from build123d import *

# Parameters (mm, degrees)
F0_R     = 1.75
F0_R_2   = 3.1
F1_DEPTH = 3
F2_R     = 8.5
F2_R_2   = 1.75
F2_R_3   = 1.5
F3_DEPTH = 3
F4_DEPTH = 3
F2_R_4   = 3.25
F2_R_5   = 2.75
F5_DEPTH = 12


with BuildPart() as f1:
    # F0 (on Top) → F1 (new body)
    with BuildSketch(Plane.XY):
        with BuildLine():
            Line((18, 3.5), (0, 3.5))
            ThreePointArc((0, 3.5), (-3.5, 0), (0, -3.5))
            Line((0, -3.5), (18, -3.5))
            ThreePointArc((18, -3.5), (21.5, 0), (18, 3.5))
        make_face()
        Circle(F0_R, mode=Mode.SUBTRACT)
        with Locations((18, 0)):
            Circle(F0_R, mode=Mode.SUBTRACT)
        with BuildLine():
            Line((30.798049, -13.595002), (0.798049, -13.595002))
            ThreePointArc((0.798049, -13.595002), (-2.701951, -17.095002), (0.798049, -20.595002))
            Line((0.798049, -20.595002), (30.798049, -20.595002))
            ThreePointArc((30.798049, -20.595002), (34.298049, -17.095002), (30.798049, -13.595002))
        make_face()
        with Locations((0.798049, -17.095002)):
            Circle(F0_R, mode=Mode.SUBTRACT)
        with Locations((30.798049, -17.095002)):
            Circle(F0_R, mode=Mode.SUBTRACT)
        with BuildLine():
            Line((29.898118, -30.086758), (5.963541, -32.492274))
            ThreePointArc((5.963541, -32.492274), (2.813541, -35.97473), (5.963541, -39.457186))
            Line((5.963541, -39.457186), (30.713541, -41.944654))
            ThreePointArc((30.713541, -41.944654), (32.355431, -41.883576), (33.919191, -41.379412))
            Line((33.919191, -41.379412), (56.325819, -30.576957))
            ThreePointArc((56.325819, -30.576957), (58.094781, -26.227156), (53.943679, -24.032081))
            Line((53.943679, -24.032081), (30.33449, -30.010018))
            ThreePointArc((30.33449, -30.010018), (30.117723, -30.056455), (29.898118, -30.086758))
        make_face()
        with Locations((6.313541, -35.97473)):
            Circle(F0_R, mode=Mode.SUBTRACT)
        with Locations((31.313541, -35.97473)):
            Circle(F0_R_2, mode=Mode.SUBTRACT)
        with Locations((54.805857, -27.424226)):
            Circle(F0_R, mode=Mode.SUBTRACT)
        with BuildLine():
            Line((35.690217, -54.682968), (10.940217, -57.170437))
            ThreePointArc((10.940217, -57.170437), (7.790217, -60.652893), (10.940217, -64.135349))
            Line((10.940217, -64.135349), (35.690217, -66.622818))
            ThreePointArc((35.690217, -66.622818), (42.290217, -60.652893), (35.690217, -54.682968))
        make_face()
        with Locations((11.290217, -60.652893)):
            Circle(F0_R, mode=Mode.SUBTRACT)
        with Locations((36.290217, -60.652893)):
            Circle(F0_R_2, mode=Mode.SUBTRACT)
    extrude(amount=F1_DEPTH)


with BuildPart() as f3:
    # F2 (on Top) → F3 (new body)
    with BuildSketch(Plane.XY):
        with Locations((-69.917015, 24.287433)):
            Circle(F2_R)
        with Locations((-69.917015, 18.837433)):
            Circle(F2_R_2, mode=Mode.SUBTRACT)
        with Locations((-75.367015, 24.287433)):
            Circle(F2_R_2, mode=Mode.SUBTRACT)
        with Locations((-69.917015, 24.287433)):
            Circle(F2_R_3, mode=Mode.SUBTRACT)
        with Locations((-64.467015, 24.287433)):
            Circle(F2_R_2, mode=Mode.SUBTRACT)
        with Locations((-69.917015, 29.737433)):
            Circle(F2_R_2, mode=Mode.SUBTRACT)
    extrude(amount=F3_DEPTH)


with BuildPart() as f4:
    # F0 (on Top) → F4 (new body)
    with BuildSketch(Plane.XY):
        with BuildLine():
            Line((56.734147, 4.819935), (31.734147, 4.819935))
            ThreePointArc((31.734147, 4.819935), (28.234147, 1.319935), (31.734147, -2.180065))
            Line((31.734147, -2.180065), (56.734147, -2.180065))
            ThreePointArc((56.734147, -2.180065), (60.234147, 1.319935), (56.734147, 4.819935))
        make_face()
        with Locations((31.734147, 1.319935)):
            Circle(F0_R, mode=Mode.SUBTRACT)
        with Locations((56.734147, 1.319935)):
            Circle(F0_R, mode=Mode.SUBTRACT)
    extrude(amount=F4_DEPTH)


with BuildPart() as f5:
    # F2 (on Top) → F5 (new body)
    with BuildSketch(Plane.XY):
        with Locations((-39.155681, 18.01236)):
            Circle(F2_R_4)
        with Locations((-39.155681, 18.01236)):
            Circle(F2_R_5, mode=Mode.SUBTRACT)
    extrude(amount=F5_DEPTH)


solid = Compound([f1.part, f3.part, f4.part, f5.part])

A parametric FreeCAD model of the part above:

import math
import FreeCAD as App
import Part
import Sketcher

V = App.Vector
Q = App.Units.Quantity

doc = App.newDocument("Part")
body = doc.addObject("PartDesign::Body", "Body")
body.AllowCompound = True

# Sketch on XY plane
sketch1 = doc.addObject("Sketcher::SketchObject", "Sketch")
body.addObject(sketch1)
sketch1.AttachmentSupport = (doc.XY_Plane, [""])
sketch1.MapMode = "FlatFace"
sketch1.addGeometry(Part.LineSegment(V(18, 3.5, 0), V(0, 3.5, 0)), False)
sketch1.addGeometry(Part.ArcOfCircle(Part.Circle(V(0, 0, 0), V(0, 0, 1), 3.5), math.radians(90), math.radians(270)), False)
sketch1.addGeometry(Part.LineSegment(V(0, -3.5, 0), V(18, -3.5, 0)), False)
sketch1.addGeometry(Part.ArcOfCircle(Part.Circle(V(18, 0, 0), V(0, 0, 1), 3.5), math.radians(-90), math.radians(90)), False)
sketch1.addGeometry(Part.Circle(V(0, 0, 0), V(0, 0, 1), 1.75), False)
sketch1.addGeometry(Part.Circle(V(18, 0, 0), V(0, 0, 1), 1.75), False)
sketch1.addGeometry(Part.LineSegment(V(30.8, -13.6, 0), V(0.8, -13.6, 0)), False)
sketch1.addGeometry(Part.ArcOfCircle(Part.Circle(V(0.8, -17.1, 0), V(0, 0, 1), 3.5), math.radians(90), math.radians(270)), False)
sketch1.addGeometry(Part.LineSegment(V(0.8, -20.6, 0), V(30.8, -20.6, 0)), False)
sketch1.addGeometry(Part.ArcOfCircle(Part.Circle(V(30.8, -17.1, 0), V(0, 0, 1), 3.5), math.radians(-90), math.radians(90)), False)
sketch1.addGeometry(Part.Circle(V(0.8, -17.1, 0), V(0, 0, 1), 1.75), False)
sketch1.addGeometry(Part.Circle(V(30.8, -17.1, 0), V(0, 0, 1), 1.75), False)
sketch1.addGeometry(Part.LineSegment(V(29.9, -30.09, 0), V(5.96, -32.49, 0)), False)
sketch1.addGeometry(Part.ArcOfCircle(Part.Circle(V(6.31, -35.97, 0), V(0, 0, 1), 3.5), math.radians(96), math.radians(264)), False)
sketch1.addGeometry(Part.LineSegment(V(5.96, -39.46, 0), V(30.71, -41.94, 0)), False)
sketch1.addGeometry(Part.ArcOfCircle(Part.Circle(V(31.31, -35.97, 0), V(0, 0, 1), 6), math.radians(-96), math.radians(-64)), False)
sketch1.addGeometry(Part.LineSegment(V(33.92, -41.38, 0), V(56.33, -30.58, 0)), False)
sketch1.addGeometry(Part.ArcOfCircle(Part.Circle(V(54.81, -27.42, 0), V(0, 0, 1), 3.5), math.radians(-64), math.radians(104)), False)
sketch1.addGeometry(Part.LineSegment(V(53.94, -24.03, 0), V(30.33, -30.01, 0)), False)
sketch1.addGeometry(Part.ArcOfCircle(Part.Circle(V(29.6, -27.1, 0), V(0, 0, 1), 3), math.radians(-84.26), math.radians(-75.79)), False)
sketch1.addGeometry(Part.Circle(V(6.31, -35.97, 0), V(0, 0, 1), 1.75), False)
sketch1.addGeometry(Part.Circle(V(31.31, -35.97, 0), V(0, 0, 1), 3.1), False)
sketch1.addGeometry(Part.Circle(V(54.81, -27.42, 0), V(0, 0, 1), 1.75), False)
sketch1.addGeometry(Part.LineSegment(V(35.69, -54.68, 0), V(10.94, -57.17, 0)), False)
sketch1.addGeometry(Part.ArcOfCircle(Part.Circle(V(11.29, -60.65, 0), V(0, 0, 1), 3.5), math.radians(96), math.radians(264)), False)
sketch1.addGeometry(Part.LineSegment(V(10.94, -64.14, 0), V(35.69, -66.62, 0)), False)
sketch1.addGeometry(Part.ArcOfCircle(Part.Circle(V(36.29, -60.65, 0), V(0, 0, 1), 6), math.radians(-96), math.radians(96)), False)
sketch1.addGeometry(Part.Circle(V(11.29, -60.65, 0), V(0, 0, 1), 1.75), False)
sketch1.addGeometry(Part.Circle(V(36.29, -60.65, 0), V(0, 0, 1), 3.1), False)
sketch1.addConstraint(Sketcher.Constraint("Tangent", 0, 2, 1, 1))
sketch1.addConstraint(Sketcher.Constraint("Tangent", 1, 2, 2, 1))
sketch1.addConstraint(Sketcher.Constraint("Tangent", 2, 2, 3, 1))
sketch1.addConstraint(Sketcher.Constraint("Tangent", 3, 2, 0, 1))
sketch1.addConstraint(Sketcher.Constraint("Tangent", 6, 2, 7, 1))
sketch1.addConstraint(Sketcher.Constraint("Tangent", 7, 2, 8, 1))
sketch1.addConstraint(Sketcher.Constraint("Tangent", 8, 2, 9, 1))
sketch1.addConstraint(Sketcher.Constraint("Tangent", 9, 2, 6, 1))
sketch1.addConstraint(Sketcher.Constraint("Tangent", 12, 2, 13, 1))
sketch1.addConstraint(Sketcher.Constraint("Tangent", 13, 2, 14, 1))
sketch1.addConstraint(Sketcher.Constraint("Tangent", 14, 2, 15, 1))
sketch1.addConstraint(Sketcher.Constraint("Tangent", 15, 2, 16, 1))
sketch1.addConstraint(Sketcher.Constraint("Tangent", 16, 2, 17, 1))
sketch1.addConstraint(Sketcher.Constraint("Coincident", 17, 2, 18, 1))
sketch1.addConstraint(Sketcher.Constraint("Tangent", 18, 2, 19, 2))
sketch1.addConstraint(Sketcher.Constraint("Tangent", 19, 1, 12, 1))
sketch1.addConstraint(Sketcher.Constraint("Tangent", 23, 2, 24, 1))
sketch1.addConstraint(Sketcher.Constraint("Tangent", 24, 2, 25, 1))
sketch1.addConstraint(Sketcher.Constraint("Tangent", 25, 2, 26, 1))
sketch1.addConstraint(Sketcher.Constraint("Tangent", 26, 2, 23, 1))
sketch1.addConstraint(Sketcher.Constraint("Horizontal", 0))
sketch1.addConstraint(Sketcher.Constraint("Horizontal", 2))
sketch1.addConstraint(Sketcher.Constraint("Horizontal", 6))
sketch1.addConstraint(Sketcher.Constraint("Horizontal", 8))
sketch1.addConstraint(Sketcher.Constraint("Coincident", 1, 3, -1, 1))
sketch1.addConstraint(Sketcher.Constraint("Coincident", 4, 3, -1, 1))
sketch1.addConstraint(Sketcher.Constraint("Coincident", 5, 3, 3, 3))
sketch1.addConstraint(Sketcher.Constraint("Coincident", 10, 3, 7, 3))
sketch1.addConstraint(Sketcher.Constraint("Coincident", 11, 3, 9, 3))
sketch1.addConstraint(Sketcher.Constraint("Coincident", 20, 3, 13, 3))
sketch1.addConstraint(Sketcher.Constraint("Coincident", 21, 3, 15, 3))
sketch1.addConstraint(Sketcher.Constraint("Coincident", 22, 3, 17, 3))
sketch1.addConstraint(Sketcher.Constraint("Coincident", 27, 3, 24, 3))
sketch1.addConstraint(Sketcher.Constraint("Coincident", 28, 3, 26, 3))
sketch1.addConstraint(Sketcher.Constraint("Equal", 4, 5))
sketch1.addConstraint(Sketcher.Constraint("Equal", 3, 7))
sketch1.addConstraint(Sketcher.Constraint("Equal", 5, 10))
sketch1.addConstraint(Sketcher.Constraint("Equal", 10, 11))
sketch1.addConstraint(Sketcher.Constraint("Equal", 9, 13))
sketch1.addConstraint(Sketcher.Constraint("Equal", 13, 17))
sketch1.addConstraint(Sketcher.Constraint("Equal", 11, 20))
sketch1.addConstraint(Sketcher.Constraint("Equal", 20, 22))
sketch1.addConstraint(Sketcher.Constraint("Equal", 17, 24))
sketch1.addConstraint(Sketcher.Constraint("Equal", 15, 26))
sketch1.addConstraint(Sketcher.Constraint("Equal", 22, 27))
sketch1.addConstraint(Sketcher.Constraint("Equal", 21, 28))
sketch1.addConstraint(Sketcher.Constraint("Parallel", 12, 23))
sketch1.addConstraint(Sketcher.Constraint("Parallel", 14, 25))
sketch1.addConstraint(Sketcher.Constraint("Horizontal", 13, 3, 15, 3))
sketch1.addConstraint(Sketcher.Constraint("Horizontal", 24, 3, 26, 3))
sketch1.addConstraint(Sketcher.Constraint("Equal", 14, 16))
sketch1.addConstraint(Sketcher.Constraint("Radius", 15, Q("6 mm")))
sketch1.addConstraint(Sketcher.Constraint("Diameter", 4, Q("3.5 mm")))
sketch1.addConstraint(Sketcher.Constraint("Diameter", 21, Q("6.2 mm")))
sketch1.addConstraint(Sketcher.Constraint("Radius", 1, Q("3.5 mm")))
sketch1.addConstraint(Sketcher.Constraint("DistanceX", 0, 2, 0, 1, Q("18 mm")))
sketch1.addConstraint(Sketcher.Constraint("DistanceX", 6, 2, 6, 1, Q("30 mm")))
sketch1.addConstraint(Sketcher.Constraint("DistanceX", 13, 3, 15, 3, Q("25.000001 mm")))
sketch1.addConstraint(Sketcher.Constraint("Radius", 19, Q("2.999961 mm")))
sketch1.addConstraint(Sketcher.Constraint("DistanceY", 6, 2, -1, 1, Q("13.595002 mm")))
sketch1.addConstraint(Sketcher.Constraint("DistanceX", 18, 2, 15, 2, Q("3.584701 mm")))
sketch1.addConstraint(Sketcher.Constraint("Distance", 18, Q("24.354251 mm")))
sketch1.addConstraint(Sketcher.Constraint("DistanceX", -1, 1, 7, 3, Q("0.798049 mm")))
sketch1.addConstraint(Sketcher.Constraint("DistanceX", -1, 1, 13, 3, Q("6.313541 mm")))
sketch1.addConstraint(Sketcher.Constraint("DistanceY", 13, 3, -1, 1, Q("35.97473 mm")))
sketch1.addConstraint(Sketcher.Constraint("DistanceX", -1, 1, 15, 2, Q("33.919191 mm")))
sketch1.addConstraint(Sketcher.Constraint("DistanceY", 24, 2, -1, 1, Q("64.135349 mm")))
sketch1.addConstraint(Sketcher.Constraint("DistanceX", 24, 3, 19, 3, Q("18.307909 mm")))
pad1 = doc.addObject("PartDesign::Pad", "Pad")
body.addObject(pad1)
pad1.Profile = sketch1
pad1.Length = 3
body2 = doc.addObject("PartDesign::Body", "Body001")

# Sketch on XY plane
sketch2 = doc.addObject("Sketcher::SketchObject", "Sketch001")
body2.addObject(sketch2)
sketch2.AttachmentSupport = (doc.getObject("XY_Plane001"), [""])
sketch2.MapMode = "FlatFace"
sketch2.addGeometry(Part.Circle(V(-69.9, 24.3, 0), V(0, 0, 1), 8.5), False)
sketch2.addGeometry(Part.Circle(V(-69.9, 18.8, 0), V(0, 0, 1), 1.8), False)
sketch2.addGeometry(Part.Circle(V(-75.4, 24.3, 0), V(0, 0, 1), 1.8), False)
sketch2.addGeometry(Part.Circle(V(-69.9, 24.3, 0), V(0, 0, 1), 1.5), False)
sketch2.addGeometry(Part.Circle(V(-69.9, 29.7, 0), V(0, 0, 1), 1.8), False)
sketch2.addGeometry(Part.Circle(V(-64.5, 24.3, 0), V(0, 0, 1), 1.8), False)
sketch2.addConstraint(Sketcher.Constraint("Coincident", 3, 3, 0, 3))
sketch2.addConstraint(Sketcher.Constraint("Equal", 1, 2))
sketch2.addConstraint(Sketcher.Constraint("Equal", 2, 4))
sketch2.addConstraint(Sketcher.Constraint("Equal", 4, 5))
sketch2.addConstraint(Sketcher.Constraint("Horizontal", 0, 3, 2, 3))
sketch2.addConstraint(Sketcher.Constraint("Horizontal", 3, 3, 5, 3))
sketch2.addConstraint(Sketcher.Constraint("Vertical", 0, 3, 1, 3))
sketch2.addConstraint(Sketcher.Constraint("Vertical", 3, 3, 4, 3))
sketch2.addConstraint(Sketcher.Constraint("Diameter", 0, Q("17 mm")))
sketch2.addConstraint(Sketcher.Constraint("Diameter", 3, Q("3 mm")))
sketch2.addConstraint(Sketcher.Constraint("Diameter", 1, Q("3.5 mm")))
sketch2.addConstraint(Sketcher.Constraint("DistanceY", 1, 3, 4, 3, Q("10.9 mm")))
sketch2.addConstraint(Sketcher.Constraint("DistanceX", 2, 3, 5, 3, Q("10.9 mm")))
sketch2.addConstraint(Sketcher.Constraint("DistanceY", 1, 3, 0, 3, Q("5.45 mm")))
sketch2.addConstraint(Sketcher.Constraint("DistanceX", 2, 3, 0, 3, Q("5.45 mm")))
sketch2.addConstraint(Sketcher.Constraint("DistanceX", 0, 3, -1, 1, Q("69.917015 mm")))
sketch2.addConstraint(Sketcher.Constraint("DistanceY", -1, 1, 0, 3, Q("24.287433 mm")))
pad2 = doc.addObject("PartDesign::Pad", "Pad001")
body2.addObject(pad2)
pad2.Profile = sketch2
pad2.Length = 3
body3 = doc.addObject("PartDesign::Body", "Body002")

# Sketch on XY plane
sketch3 = doc.addObject("Sketcher::SketchObject", "Sketch002")
body3.addObject(sketch3)
sketch3.AttachmentSupport = (doc.getObject("XY_Plane002"), [""])
sketch3.MapMode = "FlatFace"
sketch3.addGeometry(Part.LineSegment(V(56.7, 4.8, 0), V(31.7, 4.8, 0)), False)
sketch3.addGeometry(Part.ArcOfCircle(Part.Circle(V(31.7, 1.3, 0), V(0, 0, 1), 3.5), math.radians(90), math.radians(270)), False)
sketch3.addGeometry(Part.LineSegment(V(31.7, -2.2, 0), V(56.7, -2.2, 0)), False)
sketch3.addGeometry(Part.ArcOfCircle(Part.Circle(V(56.7, 1.3, 0), V(0, 0, 1), 3.5), math.radians(-90), math.radians(90)), False)
sketch3.addGeometry(Part.Circle(V(31.7, 1.3, 0), V(0, 0, 1), 1.8), False)
sketch3.addGeometry(Part.Circle(V(56.7, 1.3, 0), V(0, 0, 1), 1.8), False)
sketch3.addConstraint(Sketcher.Constraint("Tangent", 0, 2, 1, 1))
sketch3.addConstraint(Sketcher.Constraint("Tangent", 1, 2, 2, 1))
sketch3.addConstraint(Sketcher.Constraint("Tangent", 2, 2, 3, 1))
sketch3.addConstraint(Sketcher.Constraint("Tangent", 3, 2, 0, 1))
sketch3.addConstraint(Sketcher.Constraint("Horizontal", 0))
sketch3.addConstraint(Sketcher.Constraint("Horizontal", 2))
sketch3.addConstraint(Sketcher.Constraint("Coincident", 4, 3, 1, 3))
sketch3.addConstraint(Sketcher.Constraint("Coincident", 5, 3, 3, 3))
sketch3.addConstraint(Sketcher.Constraint("Equal", 4, 5))
sketch3.addConstraint(Sketcher.Constraint("Diameter", 4, Q("3.5 mm")))
sketch3.addConstraint(Sketcher.Constraint("Radius", 1, Q("3.5 mm")))
sketch3.addConstraint(Sketcher.Constraint("DistanceX", 0, 2, 0, 1, Q("25 mm")))
sketch3.addConstraint(Sketcher.Constraint("DistanceX", -1, 1, 1, 3, Q("31.734147 mm")))
sketch3.addConstraint(Sketcher.Constraint("DistanceY", -1, 1, 1, 3, Q("1.319935 mm")))
pad3 = doc.addObject("PartDesign::Pad", "Pad002")
body3.addObject(pad3)
pad3.Profile = sketch3
pad3.Length = 3
body4 = doc.addObject("PartDesign::Body", "Body003")

# Sketch on XY plane
sketch4 = doc.addObject("Sketcher::SketchObject", "Sketch003")
body4.addObject(sketch4)
sketch4.AttachmentSupport = (doc.getObject("XY_Plane003"), [""])
sketch4.MapMode = "FlatFace"
sketch4.addGeometry(Part.Circle(V(-39.2, 18, 0), V(0, 0, 1), 3.2), False)
sketch4.addGeometry(Part.Circle(V(-39.2, 18, 0), V(0, 0, 1), 2.8), False)
sketch4.addConstraint(Sketcher.Constraint("Coincident", 1, 3, 0, 3))
sketch4.addConstraint(Sketcher.Constraint("Diameter", 0, Q("6.5 mm")))
sketch4.addConstraint(Sketcher.Constraint("Diameter", 1, Q("5.5 mm")))
sketch4.addConstraint(Sketcher.Constraint("DistanceX", 0, 3, -1, 1, Q("39.155681 mm")))
sketch4.addConstraint(Sketcher.Constraint("DistanceY", -1, 1, 0, 3, Q("18.01236 mm")))
pad4 = doc.addObject("PartDesign::Pad", "Pad003")
body4.addObject(pad4)
pad4.Profile = sketch4
pad4.Length = 12

doc.recompute()
